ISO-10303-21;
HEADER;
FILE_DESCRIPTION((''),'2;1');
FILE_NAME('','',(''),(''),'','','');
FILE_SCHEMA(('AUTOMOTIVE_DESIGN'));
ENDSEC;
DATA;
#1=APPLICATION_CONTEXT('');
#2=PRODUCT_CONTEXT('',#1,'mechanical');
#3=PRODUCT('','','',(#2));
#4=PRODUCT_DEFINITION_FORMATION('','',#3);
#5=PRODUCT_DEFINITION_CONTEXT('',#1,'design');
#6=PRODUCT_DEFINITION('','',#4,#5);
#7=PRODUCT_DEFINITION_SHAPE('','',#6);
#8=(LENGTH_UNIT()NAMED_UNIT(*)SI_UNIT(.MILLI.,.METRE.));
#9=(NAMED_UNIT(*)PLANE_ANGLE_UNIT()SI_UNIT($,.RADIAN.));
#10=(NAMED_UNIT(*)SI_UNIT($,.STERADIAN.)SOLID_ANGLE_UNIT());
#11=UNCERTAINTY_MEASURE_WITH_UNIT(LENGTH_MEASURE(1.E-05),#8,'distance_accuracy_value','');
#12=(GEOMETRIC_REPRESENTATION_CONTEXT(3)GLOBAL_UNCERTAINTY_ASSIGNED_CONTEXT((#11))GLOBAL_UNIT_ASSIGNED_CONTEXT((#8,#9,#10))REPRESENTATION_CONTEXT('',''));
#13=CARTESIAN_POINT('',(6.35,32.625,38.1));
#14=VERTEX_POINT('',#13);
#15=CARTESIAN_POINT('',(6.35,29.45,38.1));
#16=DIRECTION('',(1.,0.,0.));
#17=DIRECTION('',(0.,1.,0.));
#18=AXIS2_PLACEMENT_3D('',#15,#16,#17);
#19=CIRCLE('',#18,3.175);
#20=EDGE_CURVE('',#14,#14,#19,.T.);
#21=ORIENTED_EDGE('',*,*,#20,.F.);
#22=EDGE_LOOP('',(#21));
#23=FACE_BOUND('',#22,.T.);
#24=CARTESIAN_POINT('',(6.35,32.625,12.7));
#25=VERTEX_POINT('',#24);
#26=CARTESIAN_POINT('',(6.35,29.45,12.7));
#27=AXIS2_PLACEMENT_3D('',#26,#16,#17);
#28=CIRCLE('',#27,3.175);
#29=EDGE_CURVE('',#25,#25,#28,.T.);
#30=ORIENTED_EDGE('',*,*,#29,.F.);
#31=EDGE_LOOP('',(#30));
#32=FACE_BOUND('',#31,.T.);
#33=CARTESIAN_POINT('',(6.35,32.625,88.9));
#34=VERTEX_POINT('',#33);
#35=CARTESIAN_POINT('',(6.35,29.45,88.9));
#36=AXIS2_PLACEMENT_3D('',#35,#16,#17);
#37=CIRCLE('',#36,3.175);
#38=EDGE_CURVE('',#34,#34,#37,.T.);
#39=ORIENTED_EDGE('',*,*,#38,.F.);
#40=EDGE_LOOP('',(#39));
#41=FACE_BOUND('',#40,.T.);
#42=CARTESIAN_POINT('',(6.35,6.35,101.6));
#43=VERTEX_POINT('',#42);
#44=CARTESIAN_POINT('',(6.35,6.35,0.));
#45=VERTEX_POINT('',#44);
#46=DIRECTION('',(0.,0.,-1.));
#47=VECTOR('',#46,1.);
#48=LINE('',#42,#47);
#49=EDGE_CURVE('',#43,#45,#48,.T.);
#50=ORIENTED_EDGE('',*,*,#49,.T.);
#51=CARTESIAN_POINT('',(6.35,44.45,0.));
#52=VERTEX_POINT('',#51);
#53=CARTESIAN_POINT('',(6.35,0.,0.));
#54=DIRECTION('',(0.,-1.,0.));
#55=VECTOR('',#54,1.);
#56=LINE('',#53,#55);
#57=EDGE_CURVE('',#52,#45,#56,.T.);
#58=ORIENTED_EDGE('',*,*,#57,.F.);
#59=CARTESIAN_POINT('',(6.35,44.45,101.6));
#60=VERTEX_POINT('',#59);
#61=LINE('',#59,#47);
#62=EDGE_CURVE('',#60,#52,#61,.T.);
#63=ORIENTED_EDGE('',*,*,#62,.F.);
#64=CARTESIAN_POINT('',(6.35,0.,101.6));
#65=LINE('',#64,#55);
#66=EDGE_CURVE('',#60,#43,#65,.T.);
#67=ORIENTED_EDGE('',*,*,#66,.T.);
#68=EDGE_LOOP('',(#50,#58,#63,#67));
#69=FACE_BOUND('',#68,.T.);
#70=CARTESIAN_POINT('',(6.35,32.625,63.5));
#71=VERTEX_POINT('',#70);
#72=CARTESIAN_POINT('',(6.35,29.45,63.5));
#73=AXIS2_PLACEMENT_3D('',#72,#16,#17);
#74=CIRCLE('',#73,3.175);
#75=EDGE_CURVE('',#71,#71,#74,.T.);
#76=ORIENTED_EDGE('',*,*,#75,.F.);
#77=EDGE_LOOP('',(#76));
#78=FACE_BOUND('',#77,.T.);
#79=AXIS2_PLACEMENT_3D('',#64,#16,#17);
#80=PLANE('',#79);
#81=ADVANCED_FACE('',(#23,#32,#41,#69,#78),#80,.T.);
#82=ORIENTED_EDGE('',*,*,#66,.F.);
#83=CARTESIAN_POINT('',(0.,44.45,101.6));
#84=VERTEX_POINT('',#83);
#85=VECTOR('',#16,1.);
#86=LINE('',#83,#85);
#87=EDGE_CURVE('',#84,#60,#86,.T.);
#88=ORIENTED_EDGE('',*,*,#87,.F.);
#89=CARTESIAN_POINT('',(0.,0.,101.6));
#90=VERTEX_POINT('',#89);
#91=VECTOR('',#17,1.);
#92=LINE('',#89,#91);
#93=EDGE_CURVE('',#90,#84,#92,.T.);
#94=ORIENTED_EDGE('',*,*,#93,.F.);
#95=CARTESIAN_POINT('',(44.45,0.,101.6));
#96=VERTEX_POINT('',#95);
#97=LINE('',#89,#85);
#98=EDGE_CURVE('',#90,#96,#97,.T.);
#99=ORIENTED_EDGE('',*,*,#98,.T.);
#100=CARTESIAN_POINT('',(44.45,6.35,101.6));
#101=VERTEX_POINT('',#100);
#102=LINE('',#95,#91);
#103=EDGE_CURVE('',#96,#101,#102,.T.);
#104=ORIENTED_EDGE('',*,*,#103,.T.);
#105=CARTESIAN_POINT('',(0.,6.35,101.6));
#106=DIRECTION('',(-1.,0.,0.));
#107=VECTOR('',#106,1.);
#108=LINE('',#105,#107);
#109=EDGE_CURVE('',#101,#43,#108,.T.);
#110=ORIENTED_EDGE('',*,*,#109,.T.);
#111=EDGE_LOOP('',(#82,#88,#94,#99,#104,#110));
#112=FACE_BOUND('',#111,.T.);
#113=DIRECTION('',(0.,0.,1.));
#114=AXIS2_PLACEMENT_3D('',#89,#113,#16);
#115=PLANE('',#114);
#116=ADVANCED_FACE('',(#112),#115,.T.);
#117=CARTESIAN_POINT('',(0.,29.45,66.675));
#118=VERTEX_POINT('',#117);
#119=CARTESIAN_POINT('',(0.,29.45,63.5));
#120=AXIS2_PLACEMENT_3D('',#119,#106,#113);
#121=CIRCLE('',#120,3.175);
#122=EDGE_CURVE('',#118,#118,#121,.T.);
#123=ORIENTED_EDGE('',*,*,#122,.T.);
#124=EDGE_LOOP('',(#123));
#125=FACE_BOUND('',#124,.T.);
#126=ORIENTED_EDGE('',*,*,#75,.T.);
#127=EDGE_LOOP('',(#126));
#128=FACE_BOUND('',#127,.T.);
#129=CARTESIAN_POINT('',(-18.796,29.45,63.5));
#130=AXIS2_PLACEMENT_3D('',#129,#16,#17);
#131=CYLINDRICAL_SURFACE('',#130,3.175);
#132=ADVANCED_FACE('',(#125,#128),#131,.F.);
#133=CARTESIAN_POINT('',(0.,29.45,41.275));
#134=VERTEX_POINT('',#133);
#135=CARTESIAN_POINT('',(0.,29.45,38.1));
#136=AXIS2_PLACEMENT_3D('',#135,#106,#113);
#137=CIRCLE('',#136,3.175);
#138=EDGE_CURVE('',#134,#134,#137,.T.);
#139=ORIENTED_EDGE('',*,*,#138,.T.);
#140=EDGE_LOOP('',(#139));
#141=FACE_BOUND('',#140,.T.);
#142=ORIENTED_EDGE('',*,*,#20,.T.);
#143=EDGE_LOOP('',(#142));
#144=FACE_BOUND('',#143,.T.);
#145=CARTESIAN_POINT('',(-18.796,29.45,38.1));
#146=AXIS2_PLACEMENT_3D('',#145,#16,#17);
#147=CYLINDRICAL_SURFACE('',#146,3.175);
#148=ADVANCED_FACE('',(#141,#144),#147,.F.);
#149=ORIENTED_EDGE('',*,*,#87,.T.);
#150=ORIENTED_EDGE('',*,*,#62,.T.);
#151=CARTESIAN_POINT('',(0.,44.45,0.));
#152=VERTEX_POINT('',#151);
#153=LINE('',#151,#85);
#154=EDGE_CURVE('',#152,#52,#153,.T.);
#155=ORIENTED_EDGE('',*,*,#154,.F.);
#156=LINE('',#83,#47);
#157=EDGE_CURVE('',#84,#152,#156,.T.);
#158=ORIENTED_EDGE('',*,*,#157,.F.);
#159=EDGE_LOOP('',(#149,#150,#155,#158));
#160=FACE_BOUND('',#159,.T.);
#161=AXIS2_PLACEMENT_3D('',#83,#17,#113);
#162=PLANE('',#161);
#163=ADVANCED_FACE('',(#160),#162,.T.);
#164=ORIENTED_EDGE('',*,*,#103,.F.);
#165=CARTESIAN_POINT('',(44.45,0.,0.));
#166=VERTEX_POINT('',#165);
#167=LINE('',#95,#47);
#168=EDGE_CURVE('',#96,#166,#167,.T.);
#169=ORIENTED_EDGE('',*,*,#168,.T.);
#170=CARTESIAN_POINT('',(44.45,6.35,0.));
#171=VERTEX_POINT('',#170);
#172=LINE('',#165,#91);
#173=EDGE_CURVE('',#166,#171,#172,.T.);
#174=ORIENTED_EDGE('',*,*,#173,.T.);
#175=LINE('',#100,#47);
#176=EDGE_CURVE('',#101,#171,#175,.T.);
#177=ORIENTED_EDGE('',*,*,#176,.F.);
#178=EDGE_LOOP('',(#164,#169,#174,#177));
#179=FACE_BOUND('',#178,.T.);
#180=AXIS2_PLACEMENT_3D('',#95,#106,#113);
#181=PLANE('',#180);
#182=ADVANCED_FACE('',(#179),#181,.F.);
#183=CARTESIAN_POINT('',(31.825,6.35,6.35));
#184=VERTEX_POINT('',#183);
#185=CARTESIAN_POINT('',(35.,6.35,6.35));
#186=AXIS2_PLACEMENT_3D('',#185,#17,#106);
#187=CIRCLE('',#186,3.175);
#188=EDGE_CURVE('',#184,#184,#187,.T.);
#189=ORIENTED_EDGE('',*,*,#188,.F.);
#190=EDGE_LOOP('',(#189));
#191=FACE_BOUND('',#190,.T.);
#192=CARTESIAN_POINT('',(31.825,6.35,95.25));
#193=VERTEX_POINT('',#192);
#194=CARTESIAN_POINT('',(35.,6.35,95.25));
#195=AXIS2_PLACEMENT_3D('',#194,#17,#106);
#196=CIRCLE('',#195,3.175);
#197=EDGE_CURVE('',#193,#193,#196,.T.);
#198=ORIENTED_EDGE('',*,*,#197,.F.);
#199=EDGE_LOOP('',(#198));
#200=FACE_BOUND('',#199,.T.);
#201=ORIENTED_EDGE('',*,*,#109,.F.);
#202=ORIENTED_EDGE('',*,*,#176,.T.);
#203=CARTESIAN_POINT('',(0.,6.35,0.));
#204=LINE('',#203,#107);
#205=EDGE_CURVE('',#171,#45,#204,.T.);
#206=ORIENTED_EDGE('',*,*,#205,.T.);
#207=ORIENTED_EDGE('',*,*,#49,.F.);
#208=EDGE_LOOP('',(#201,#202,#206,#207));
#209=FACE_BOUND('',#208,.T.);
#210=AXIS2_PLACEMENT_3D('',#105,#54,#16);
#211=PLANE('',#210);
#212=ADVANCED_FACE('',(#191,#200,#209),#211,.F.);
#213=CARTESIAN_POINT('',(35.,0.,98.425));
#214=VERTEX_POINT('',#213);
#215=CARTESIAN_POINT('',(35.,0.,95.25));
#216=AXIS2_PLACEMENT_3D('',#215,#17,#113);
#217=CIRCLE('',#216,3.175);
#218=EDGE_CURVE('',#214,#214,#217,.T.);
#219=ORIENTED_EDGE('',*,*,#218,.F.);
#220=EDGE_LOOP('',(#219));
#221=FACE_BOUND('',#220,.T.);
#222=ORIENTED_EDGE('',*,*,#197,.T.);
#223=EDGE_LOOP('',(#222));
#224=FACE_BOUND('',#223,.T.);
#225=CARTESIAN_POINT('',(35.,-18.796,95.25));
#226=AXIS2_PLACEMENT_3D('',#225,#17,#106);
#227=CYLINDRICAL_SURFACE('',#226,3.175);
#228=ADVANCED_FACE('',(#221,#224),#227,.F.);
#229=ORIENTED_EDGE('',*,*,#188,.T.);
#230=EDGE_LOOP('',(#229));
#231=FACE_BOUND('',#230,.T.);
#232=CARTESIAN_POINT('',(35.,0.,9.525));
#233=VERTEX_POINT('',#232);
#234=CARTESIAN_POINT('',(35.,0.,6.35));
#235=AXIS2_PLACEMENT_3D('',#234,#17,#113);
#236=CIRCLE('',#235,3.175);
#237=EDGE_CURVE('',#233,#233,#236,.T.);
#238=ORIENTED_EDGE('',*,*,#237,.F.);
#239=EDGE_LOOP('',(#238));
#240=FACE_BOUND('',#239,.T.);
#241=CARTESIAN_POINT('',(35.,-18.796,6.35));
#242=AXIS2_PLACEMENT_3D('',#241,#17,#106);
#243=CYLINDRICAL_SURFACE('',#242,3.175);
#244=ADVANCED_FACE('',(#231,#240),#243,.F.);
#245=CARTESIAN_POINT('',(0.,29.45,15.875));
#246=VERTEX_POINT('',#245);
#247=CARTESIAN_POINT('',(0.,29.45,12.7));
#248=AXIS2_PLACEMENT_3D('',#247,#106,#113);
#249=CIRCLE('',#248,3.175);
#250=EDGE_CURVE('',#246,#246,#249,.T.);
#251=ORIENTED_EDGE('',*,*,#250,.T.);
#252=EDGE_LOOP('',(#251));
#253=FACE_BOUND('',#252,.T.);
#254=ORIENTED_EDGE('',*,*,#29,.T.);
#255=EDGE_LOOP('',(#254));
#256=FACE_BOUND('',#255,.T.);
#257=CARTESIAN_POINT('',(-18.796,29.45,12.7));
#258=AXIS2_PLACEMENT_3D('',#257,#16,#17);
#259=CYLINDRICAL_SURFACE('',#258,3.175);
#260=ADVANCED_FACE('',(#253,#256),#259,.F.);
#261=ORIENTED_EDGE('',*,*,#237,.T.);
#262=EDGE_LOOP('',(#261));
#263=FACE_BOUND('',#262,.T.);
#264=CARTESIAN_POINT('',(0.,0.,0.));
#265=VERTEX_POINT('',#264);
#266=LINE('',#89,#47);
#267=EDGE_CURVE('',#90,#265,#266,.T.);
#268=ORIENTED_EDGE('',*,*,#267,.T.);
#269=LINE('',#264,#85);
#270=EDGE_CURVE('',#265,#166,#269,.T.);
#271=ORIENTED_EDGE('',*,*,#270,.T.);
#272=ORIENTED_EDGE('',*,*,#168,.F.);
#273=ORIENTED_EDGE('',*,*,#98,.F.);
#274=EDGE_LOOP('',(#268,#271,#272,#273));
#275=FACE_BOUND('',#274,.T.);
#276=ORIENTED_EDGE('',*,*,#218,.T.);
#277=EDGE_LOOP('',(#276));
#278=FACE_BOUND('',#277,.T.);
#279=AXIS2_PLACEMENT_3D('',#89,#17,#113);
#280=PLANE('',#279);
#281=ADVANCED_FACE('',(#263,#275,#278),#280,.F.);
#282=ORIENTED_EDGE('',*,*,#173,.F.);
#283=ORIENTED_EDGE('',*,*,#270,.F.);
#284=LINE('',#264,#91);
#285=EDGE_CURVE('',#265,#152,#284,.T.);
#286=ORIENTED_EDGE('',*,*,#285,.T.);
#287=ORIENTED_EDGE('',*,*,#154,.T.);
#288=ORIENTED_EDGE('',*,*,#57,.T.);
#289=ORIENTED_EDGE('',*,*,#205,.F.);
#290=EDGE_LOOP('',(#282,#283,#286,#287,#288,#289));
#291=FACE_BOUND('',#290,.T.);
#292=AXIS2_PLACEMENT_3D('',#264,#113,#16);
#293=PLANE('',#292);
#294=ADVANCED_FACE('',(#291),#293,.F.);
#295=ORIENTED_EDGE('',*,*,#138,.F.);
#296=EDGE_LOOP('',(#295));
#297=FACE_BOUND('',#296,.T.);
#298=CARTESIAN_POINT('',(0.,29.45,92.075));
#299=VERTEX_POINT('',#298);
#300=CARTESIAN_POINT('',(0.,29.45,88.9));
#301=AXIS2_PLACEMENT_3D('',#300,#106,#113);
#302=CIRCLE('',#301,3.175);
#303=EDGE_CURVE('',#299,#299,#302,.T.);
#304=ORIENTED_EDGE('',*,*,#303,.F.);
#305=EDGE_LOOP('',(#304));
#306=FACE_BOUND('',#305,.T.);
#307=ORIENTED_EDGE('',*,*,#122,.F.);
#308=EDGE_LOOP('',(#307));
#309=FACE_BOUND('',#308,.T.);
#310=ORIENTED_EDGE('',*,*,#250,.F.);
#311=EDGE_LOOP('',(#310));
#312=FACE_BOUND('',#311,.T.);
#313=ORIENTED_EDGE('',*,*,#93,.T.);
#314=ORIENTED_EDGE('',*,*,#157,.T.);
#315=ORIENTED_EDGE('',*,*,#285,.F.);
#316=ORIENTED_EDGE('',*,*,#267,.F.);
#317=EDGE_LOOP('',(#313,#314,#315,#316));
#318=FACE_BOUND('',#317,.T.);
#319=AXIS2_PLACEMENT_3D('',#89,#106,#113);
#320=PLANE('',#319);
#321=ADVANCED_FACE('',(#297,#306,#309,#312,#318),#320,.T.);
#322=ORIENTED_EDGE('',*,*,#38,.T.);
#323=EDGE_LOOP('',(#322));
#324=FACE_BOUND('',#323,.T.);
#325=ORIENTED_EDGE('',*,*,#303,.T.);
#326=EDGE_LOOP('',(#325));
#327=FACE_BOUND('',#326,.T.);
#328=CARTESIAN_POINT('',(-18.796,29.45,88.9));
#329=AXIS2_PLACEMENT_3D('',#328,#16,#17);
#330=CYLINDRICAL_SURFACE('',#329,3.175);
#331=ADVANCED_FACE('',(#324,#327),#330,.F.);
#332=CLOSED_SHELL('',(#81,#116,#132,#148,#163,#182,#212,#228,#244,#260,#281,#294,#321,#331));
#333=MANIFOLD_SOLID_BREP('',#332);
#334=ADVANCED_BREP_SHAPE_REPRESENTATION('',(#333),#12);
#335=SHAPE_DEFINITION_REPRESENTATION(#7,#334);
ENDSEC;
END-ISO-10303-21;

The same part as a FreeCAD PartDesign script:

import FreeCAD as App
import Part
import Sketcher

V = App.Vector
Q = App.Units.Quantity


def add_polygon(sketch, points):
    """Adds a closed chain of lines whose ends are joined by coincident constraints."""
    first, n = sketch.GeometryCount, len(points)
    for a, b in zip(points, points[1:] + points[:1]):
        sketch.addGeometry(Part.LineSegment(App.Vector(*a, 0), App.Vector(*b, 0)), False)
    for i in range(n):
        sketch.addConstraint(Sketcher.Constraint("Coincident", first + i, 2, first + (i + 1) % n, 1))

doc = App.newDocument("Part")
body = doc.addObject("PartDesign::Body", "Body")

sketch1 = body.newObject("Sketcher::SketchObject", "Sketch")
sketch1.AttachmentSupport = (doc.getObject("XY_Plane"), [""])
sketch1.MapMode = "FlatFace"
add_polygon(sketch1, [(0, 44.45), (0, 0), (44.45, 0), (44.45, 6.35), (6.35, 6.35), (6.35, 44.45)])
sketch1.addConstraint([
    Sketcher.Constraint("Vertical", 0),
    Sketcher.Constraint("Horizontal", 1),
    Sketcher.Constraint("Vertical", 2),
    Sketcher.Constraint("Horizontal", 3),
    Sketcher.Constraint("Vertical", 4),
    Sketcher.Constraint("Horizontal", 5),
    Sketcher.Constraint("Coincident", 0, 2, -1, 1),
    Sketcher.Constraint("Equal", 1, 0),
    Sketcher.Constraint("Equal", 5, 2),
    Sketcher.Constraint("DistanceX", 3, 2, 3, 1, Q("1.5 in")),
    Sketcher.Constraint("DistanceX", 1, 1, 1, 2, Q("1.75 in")),
])
pad1 = body.newObject("PartDesign::Pad", "Pad")
pad1.Profile = sketch1
pad1.Length = Q("4 in")

sketch2 = body.newObject("Sketcher::SketchObject", "Sketch001")
sketch2.AttachmentSupport = (doc.getObject("XZ_Plane"), [""])
sketch2.MapMode = "FlatFace"
sketch2.AttachmentOffset = App.Placement(V(0, 0, -0.25 * 25.4), App.Rotation())
sketch2.addGeometry([
    Part.Circle(V(35, 95.25, 0), V(0, 0, 1), 3.175),
    Part.Circle(V(35, 6.35, 0), V(0, 0, 1), 3.175),
], False)
sketch2.addConstraint([
    Sketcher.Constraint("Equal", 0, 1),
    Sketcher.Constraint("Vertical", 0, 3, 1, 3),
    Sketcher.Constraint("Diameter", 0, Q("0.25 in")),
    Sketcher.Constraint("DistanceY", 1, 3, 0, 3, Q("3.5 in")),
    Sketcher.Constraint("DistanceY", -1, 1, 0, 3, Q("3.75 in")),
    Sketcher.Constraint("DistanceX", -1, 1, 0, 3, Q("35 mm")),
])
pocket1 = body.newObject("PartDesign::Pocket", "Pocket")
pocket1.Profile = sketch2
pocket1.Length = Q("0.99 in")
pocket1.Reversed = True

sketch3 = body.newObject("Sketcher::SketchObject", "Sketch002")
sketch3.AttachmentSupport = (doc.getObject("YZ_Plane"), [""])
sketch3.MapMode = "FlatFace"
sketch3.AttachmentOffset = App.Placement(V(0, 0, 0.25 * 25.4), App.Rotation())
sketch3.addGeometry([
    Part.Circle(V(29.45, 12.7, 0), V(0, 0, 1), 3.175),
    Part.Circle(V(29.45, 63.5, 0), V(0, 0, 1), 3.175),
    Part.Circle(V(29.45, 88.9, 0), V(0, 0, 1), 3.175),
    Part.Circle(V(29.45, 38.1, 0), V(0, 0, 1), 3.175),
], False)
sketch3.addConstraint([
    Sketcher.Constraint("Equal", 0, 1),
    Sketcher.Constraint("Equal", 1, 2),
    Sketcher.Constraint("Equal", 2, 3),
    Sketcher.Constraint("Vertical", 0, 3, 1, 3),
    Sketcher.Constraint("Vertical", 1, 3, 2, 3),
    Sketcher.Constraint("Vertical", 2, 3, 3, 3),
    Sketcher.Constraint("Diameter", 0, Q("0.25 in")),
    Sketcher.Constraint("DistanceY", 0, 3, 1, 3, Q("2 in")),
    Sketcher.Constraint("DistanceY", 1, 3, 2, 3, Q("1 in")),
    Sketcher.Constraint("DistanceY", 3, 3, 1, 3, Q("1 in")),
    Sketcher.Constraint("DistanceY", -1, 1, 0, 3, Q("0.5 in")),
    Sketcher.Constraint("DistanceX", -1, 1, 0, 3, Q("29.45 mm")),
])
pocket2 = body.newObject("PartDesign::Pocket", "Pocket001")
pocket2.Profile = sketch3
pocket2.Length = Q("0.99 in")

doc.recompute()
